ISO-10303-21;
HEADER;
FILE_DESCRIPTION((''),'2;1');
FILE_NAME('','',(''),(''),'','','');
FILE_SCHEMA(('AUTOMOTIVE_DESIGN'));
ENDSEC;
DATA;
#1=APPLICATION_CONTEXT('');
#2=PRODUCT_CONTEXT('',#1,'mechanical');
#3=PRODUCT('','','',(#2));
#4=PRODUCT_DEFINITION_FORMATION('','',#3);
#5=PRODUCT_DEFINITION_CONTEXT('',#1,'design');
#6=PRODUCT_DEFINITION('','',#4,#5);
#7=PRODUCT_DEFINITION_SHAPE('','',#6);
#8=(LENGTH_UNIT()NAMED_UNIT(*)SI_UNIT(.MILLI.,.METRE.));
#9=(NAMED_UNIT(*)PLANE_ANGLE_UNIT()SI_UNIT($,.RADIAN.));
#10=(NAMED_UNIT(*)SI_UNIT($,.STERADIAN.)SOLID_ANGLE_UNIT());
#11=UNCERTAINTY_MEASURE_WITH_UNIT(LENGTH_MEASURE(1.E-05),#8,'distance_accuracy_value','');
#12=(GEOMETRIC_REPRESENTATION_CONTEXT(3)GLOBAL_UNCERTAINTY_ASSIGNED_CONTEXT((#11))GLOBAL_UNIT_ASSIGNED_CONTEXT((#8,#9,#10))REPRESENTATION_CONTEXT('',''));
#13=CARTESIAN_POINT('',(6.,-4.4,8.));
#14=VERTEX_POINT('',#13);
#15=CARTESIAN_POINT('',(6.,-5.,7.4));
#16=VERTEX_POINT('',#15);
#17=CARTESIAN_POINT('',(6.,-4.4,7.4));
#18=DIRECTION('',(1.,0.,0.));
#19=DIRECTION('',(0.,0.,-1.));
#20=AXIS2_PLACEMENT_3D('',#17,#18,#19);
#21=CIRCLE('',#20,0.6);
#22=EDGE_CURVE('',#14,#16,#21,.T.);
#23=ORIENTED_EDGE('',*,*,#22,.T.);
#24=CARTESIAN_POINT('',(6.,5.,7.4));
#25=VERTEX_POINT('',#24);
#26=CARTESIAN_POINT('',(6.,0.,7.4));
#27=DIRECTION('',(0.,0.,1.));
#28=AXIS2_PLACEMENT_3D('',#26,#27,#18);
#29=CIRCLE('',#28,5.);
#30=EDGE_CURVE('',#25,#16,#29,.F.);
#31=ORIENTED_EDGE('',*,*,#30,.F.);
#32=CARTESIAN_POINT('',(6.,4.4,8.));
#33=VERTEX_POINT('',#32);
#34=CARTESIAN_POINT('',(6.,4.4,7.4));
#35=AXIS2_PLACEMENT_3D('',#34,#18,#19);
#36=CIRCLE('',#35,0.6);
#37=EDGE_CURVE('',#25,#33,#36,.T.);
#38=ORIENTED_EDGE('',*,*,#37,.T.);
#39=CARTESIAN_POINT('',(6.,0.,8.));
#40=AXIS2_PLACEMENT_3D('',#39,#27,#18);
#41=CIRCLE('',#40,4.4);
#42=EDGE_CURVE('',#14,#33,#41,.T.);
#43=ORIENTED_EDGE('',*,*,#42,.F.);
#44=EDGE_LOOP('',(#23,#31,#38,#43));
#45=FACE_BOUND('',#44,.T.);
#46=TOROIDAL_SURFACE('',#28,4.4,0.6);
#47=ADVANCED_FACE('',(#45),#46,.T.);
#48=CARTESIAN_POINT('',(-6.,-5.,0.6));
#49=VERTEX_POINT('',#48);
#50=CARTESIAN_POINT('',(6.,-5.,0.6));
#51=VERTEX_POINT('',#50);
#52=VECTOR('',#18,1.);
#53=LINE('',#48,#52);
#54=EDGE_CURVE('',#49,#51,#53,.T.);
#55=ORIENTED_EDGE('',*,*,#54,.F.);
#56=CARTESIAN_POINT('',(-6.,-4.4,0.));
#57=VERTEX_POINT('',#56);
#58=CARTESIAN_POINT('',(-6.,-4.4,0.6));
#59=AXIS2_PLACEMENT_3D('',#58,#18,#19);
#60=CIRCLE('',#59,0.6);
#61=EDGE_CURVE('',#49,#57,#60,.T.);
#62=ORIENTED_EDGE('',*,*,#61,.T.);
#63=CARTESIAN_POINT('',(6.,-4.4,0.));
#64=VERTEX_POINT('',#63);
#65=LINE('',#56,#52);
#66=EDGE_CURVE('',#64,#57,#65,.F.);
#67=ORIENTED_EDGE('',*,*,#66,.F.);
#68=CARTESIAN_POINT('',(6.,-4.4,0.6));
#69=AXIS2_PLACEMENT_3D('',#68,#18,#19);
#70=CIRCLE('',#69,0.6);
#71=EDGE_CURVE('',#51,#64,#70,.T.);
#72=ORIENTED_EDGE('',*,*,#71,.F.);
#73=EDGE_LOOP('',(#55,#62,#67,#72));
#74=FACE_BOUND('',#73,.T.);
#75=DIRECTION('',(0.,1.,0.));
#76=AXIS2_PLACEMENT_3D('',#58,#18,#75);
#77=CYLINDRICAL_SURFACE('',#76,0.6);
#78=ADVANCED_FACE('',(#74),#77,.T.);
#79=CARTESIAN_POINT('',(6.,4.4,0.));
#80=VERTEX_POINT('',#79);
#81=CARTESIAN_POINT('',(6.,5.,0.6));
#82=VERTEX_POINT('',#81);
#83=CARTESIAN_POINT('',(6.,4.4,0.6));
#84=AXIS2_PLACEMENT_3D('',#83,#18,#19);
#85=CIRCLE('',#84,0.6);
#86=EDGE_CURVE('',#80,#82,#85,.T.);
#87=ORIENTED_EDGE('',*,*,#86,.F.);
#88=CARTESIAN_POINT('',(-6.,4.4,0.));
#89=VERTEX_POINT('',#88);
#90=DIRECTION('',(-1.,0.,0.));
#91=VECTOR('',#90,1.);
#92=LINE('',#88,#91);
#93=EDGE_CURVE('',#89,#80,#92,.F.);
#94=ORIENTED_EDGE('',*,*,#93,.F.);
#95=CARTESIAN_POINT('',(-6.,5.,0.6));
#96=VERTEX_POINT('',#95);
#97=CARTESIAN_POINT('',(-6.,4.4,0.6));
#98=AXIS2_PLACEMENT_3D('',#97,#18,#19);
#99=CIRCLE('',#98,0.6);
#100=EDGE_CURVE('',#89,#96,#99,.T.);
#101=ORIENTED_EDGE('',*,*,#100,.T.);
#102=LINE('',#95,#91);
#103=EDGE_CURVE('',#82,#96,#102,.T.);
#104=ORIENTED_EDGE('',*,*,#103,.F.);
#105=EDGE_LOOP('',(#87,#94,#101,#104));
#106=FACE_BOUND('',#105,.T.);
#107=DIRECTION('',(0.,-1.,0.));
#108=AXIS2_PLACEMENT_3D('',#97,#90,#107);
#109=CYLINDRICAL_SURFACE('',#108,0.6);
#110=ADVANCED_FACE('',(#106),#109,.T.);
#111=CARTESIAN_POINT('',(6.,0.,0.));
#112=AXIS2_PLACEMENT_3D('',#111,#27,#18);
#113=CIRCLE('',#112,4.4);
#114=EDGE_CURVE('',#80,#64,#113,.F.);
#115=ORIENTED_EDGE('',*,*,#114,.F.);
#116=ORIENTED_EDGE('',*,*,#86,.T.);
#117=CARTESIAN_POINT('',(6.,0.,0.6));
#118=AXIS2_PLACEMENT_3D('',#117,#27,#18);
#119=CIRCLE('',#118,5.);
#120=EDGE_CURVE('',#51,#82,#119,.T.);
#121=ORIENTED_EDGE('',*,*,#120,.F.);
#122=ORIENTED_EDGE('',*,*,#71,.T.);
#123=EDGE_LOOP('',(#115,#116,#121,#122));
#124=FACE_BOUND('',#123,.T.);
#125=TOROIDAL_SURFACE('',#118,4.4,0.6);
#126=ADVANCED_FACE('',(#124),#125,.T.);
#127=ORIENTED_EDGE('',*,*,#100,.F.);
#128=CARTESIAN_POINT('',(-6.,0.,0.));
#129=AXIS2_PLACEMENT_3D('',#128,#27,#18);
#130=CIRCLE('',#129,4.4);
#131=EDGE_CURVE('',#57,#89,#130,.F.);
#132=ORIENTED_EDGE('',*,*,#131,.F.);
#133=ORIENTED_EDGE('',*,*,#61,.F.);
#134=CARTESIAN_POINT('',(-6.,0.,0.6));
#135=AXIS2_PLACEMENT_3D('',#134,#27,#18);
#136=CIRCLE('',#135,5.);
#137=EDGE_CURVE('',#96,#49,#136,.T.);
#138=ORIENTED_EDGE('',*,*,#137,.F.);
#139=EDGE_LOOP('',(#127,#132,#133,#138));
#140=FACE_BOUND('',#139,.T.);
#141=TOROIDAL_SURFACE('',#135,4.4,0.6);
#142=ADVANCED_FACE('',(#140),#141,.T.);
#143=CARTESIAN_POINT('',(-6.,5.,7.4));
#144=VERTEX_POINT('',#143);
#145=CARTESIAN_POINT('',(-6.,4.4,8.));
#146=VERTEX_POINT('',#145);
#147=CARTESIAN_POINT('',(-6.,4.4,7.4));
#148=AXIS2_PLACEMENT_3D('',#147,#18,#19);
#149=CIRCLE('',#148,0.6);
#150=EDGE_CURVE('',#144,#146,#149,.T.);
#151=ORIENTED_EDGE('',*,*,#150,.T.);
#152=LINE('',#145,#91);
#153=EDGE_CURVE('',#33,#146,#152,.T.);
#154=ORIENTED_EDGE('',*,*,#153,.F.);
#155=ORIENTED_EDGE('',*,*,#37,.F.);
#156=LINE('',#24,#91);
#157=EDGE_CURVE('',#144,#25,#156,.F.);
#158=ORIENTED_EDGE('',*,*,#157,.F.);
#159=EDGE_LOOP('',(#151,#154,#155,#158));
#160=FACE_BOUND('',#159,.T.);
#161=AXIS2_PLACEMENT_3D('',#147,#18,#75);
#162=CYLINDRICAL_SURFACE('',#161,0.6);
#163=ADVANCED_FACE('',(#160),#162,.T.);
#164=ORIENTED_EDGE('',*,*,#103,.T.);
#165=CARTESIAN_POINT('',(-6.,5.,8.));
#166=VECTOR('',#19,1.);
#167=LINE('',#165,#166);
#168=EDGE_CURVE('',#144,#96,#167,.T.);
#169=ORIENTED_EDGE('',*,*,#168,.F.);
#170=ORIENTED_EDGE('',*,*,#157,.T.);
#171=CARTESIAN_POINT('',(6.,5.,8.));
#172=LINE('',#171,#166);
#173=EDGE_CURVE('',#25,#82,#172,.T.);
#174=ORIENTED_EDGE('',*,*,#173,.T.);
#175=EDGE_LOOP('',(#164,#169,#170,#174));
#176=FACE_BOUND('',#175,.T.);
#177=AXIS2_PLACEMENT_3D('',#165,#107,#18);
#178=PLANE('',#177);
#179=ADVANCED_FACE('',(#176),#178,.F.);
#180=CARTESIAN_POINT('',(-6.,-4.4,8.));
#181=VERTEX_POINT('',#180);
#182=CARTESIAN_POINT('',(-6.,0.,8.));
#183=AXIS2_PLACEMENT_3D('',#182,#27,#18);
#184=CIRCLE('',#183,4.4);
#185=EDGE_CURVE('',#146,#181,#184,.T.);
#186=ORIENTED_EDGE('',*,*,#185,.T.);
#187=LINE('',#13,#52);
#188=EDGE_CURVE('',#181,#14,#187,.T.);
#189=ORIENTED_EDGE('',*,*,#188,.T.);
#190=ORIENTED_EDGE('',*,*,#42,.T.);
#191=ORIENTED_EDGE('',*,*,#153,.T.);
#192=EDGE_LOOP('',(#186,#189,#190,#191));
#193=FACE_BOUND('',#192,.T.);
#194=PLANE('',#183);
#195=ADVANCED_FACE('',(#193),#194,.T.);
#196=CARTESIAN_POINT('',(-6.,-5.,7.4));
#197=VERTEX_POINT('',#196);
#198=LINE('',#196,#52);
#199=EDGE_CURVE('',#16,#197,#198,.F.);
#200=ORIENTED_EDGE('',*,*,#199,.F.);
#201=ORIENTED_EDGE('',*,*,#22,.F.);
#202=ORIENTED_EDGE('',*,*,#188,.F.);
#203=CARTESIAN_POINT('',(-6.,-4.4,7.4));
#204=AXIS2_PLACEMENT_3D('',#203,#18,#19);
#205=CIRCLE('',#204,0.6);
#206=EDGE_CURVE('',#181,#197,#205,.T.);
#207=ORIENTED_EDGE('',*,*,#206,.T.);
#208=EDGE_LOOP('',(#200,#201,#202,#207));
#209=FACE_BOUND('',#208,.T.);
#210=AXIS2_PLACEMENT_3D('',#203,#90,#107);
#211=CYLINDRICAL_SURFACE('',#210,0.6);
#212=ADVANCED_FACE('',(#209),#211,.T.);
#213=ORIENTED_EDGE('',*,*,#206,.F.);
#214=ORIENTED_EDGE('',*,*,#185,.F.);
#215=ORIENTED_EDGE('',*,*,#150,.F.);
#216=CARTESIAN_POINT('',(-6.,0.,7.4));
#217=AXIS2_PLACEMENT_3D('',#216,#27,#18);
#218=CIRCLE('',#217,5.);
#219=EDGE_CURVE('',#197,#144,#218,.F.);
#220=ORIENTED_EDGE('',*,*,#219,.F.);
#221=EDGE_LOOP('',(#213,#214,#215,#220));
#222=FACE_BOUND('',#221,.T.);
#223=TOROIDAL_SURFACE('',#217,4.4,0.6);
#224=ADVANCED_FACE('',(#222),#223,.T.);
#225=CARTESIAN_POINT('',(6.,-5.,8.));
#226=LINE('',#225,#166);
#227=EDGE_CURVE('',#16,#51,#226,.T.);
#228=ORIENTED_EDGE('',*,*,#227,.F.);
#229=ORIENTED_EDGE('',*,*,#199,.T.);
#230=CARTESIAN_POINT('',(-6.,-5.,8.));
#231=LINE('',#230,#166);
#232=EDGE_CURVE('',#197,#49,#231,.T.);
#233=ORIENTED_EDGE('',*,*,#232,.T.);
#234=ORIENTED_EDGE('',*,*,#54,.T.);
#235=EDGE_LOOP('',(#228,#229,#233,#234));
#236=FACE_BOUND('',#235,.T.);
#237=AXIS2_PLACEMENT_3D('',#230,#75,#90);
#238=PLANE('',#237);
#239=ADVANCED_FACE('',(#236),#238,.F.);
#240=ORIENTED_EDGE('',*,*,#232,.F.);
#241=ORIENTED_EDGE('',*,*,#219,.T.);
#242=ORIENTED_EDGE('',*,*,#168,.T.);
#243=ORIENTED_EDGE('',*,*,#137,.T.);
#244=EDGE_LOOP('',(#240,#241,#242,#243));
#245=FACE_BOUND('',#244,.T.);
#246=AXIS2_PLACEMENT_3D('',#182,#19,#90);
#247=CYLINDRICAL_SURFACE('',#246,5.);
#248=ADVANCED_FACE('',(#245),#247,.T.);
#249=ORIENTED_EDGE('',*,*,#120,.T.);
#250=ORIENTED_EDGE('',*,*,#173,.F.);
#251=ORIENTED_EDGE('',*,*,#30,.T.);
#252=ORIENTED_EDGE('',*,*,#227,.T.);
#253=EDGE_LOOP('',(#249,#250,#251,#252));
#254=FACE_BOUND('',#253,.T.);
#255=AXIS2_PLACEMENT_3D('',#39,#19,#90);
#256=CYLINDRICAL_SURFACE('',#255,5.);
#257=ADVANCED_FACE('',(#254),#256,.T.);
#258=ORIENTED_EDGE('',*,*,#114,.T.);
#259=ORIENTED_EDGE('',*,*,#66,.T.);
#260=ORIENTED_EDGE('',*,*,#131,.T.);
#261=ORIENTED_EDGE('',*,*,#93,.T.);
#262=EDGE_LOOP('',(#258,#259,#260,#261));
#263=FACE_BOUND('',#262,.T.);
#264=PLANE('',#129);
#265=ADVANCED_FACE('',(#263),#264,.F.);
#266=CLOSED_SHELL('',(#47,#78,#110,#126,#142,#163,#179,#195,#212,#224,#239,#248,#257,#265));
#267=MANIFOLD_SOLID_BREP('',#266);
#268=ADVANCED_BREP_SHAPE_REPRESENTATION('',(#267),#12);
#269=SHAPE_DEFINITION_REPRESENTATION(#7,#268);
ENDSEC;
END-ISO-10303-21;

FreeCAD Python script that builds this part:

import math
import FreeCAD as App
import Part
import Sketcher

V = App.Vector
Q = App.Units.Quantity


def edges_at(feature, points):
    """Names of the edges that pass closest to the given points."""
    edges = feature.Shape.Edges
    near = lambda p: min(range(len(edges)), key=lambda i: edges[i].distToShape(Part.Vertex(*p))[0])
    return sorted({f"Edge{near(p) + 1}" for p in points})

doc = App.newDocument("Part")
body = doc.addObject("PartDesign::Body", "Body")

# Sketch on XY plane
sketch1 = doc.addObject("Sketcher::SketchObject", "Sketch")
body.addObject(sketch1)
sketch1.AttachmentSupport = (doc.XY_Plane, [""])
sketch1.MapMode = "FlatFace"
sketch1.addGeometry(Part.LineSegment(V(6, 5, 0), V(-6, 5, 0)), False)
sketch1.addGeometry(Part.ArcOfCircle(Part.Circle(V(-6, 0, 0), V(0, 0, 1), 5), math.radians(90), math.radians(270)), False)
sketch1.addGeometry(Part.LineSegment(V(-6, -5, 0), V(6, -5, 0)), False)
sketch1.addGeometry(Part.ArcOfCircle(Part.Circle(V(6, 0, 0), V(0, 0, 1), 5), math.radians(-90), math.radians(90)), False)
sketch1.addConstraint(Sketcher.Constraint("Tangent", 0, 2, 1, 1))
sketch1.addConstraint(Sketcher.Constraint("Tangent", 1, 2, 2, 1))
sketch1.addConstraint(Sketcher.Constraint("Tangent", 2, 2, 3, 1))
sketch1.addConstraint(Sketcher.Constraint("Tangent", 3, 2, 0, 1))
sketch1.addConstraint(Sketcher.Constraint("Horizontal", 0))
sketch1.addConstraint(Sketcher.Constraint("Horizontal", 2))
sketch1.addConstraint(Sketcher.Constraint("Symmetric", 1, 3, 3, 3, -1, 1))
sketch1.addConstraint(Sketcher.Constraint("Radius", 1, Q("5 mm")))
sketch1.addConstraint(Sketcher.Constraint("DistanceX", 0, 2, 0, 1, Q("12 mm")))
pad1 = doc.addObject("PartDesign::Pad", "Pad")
body.addObject(pad1)
pad1.Profile = sketch1
pad1.Length = 8
doc.recompute()

fillet = doc.addObject("PartDesign::Fillet", "Fillet")
body.addObject(fillet)
fillet.Base = (pad1, edges_at(pad1, [
    (11, 0, 8),
    (0, 5, 8),
    (-11, 0, 8),
    (0, 5, 0),
    (11, 0, 0),
    (0, -5, 0),
    (-11, 0, 0),
    (0, -5, 8),
]))
fillet.Radius = 0.6

doc.recompute()
